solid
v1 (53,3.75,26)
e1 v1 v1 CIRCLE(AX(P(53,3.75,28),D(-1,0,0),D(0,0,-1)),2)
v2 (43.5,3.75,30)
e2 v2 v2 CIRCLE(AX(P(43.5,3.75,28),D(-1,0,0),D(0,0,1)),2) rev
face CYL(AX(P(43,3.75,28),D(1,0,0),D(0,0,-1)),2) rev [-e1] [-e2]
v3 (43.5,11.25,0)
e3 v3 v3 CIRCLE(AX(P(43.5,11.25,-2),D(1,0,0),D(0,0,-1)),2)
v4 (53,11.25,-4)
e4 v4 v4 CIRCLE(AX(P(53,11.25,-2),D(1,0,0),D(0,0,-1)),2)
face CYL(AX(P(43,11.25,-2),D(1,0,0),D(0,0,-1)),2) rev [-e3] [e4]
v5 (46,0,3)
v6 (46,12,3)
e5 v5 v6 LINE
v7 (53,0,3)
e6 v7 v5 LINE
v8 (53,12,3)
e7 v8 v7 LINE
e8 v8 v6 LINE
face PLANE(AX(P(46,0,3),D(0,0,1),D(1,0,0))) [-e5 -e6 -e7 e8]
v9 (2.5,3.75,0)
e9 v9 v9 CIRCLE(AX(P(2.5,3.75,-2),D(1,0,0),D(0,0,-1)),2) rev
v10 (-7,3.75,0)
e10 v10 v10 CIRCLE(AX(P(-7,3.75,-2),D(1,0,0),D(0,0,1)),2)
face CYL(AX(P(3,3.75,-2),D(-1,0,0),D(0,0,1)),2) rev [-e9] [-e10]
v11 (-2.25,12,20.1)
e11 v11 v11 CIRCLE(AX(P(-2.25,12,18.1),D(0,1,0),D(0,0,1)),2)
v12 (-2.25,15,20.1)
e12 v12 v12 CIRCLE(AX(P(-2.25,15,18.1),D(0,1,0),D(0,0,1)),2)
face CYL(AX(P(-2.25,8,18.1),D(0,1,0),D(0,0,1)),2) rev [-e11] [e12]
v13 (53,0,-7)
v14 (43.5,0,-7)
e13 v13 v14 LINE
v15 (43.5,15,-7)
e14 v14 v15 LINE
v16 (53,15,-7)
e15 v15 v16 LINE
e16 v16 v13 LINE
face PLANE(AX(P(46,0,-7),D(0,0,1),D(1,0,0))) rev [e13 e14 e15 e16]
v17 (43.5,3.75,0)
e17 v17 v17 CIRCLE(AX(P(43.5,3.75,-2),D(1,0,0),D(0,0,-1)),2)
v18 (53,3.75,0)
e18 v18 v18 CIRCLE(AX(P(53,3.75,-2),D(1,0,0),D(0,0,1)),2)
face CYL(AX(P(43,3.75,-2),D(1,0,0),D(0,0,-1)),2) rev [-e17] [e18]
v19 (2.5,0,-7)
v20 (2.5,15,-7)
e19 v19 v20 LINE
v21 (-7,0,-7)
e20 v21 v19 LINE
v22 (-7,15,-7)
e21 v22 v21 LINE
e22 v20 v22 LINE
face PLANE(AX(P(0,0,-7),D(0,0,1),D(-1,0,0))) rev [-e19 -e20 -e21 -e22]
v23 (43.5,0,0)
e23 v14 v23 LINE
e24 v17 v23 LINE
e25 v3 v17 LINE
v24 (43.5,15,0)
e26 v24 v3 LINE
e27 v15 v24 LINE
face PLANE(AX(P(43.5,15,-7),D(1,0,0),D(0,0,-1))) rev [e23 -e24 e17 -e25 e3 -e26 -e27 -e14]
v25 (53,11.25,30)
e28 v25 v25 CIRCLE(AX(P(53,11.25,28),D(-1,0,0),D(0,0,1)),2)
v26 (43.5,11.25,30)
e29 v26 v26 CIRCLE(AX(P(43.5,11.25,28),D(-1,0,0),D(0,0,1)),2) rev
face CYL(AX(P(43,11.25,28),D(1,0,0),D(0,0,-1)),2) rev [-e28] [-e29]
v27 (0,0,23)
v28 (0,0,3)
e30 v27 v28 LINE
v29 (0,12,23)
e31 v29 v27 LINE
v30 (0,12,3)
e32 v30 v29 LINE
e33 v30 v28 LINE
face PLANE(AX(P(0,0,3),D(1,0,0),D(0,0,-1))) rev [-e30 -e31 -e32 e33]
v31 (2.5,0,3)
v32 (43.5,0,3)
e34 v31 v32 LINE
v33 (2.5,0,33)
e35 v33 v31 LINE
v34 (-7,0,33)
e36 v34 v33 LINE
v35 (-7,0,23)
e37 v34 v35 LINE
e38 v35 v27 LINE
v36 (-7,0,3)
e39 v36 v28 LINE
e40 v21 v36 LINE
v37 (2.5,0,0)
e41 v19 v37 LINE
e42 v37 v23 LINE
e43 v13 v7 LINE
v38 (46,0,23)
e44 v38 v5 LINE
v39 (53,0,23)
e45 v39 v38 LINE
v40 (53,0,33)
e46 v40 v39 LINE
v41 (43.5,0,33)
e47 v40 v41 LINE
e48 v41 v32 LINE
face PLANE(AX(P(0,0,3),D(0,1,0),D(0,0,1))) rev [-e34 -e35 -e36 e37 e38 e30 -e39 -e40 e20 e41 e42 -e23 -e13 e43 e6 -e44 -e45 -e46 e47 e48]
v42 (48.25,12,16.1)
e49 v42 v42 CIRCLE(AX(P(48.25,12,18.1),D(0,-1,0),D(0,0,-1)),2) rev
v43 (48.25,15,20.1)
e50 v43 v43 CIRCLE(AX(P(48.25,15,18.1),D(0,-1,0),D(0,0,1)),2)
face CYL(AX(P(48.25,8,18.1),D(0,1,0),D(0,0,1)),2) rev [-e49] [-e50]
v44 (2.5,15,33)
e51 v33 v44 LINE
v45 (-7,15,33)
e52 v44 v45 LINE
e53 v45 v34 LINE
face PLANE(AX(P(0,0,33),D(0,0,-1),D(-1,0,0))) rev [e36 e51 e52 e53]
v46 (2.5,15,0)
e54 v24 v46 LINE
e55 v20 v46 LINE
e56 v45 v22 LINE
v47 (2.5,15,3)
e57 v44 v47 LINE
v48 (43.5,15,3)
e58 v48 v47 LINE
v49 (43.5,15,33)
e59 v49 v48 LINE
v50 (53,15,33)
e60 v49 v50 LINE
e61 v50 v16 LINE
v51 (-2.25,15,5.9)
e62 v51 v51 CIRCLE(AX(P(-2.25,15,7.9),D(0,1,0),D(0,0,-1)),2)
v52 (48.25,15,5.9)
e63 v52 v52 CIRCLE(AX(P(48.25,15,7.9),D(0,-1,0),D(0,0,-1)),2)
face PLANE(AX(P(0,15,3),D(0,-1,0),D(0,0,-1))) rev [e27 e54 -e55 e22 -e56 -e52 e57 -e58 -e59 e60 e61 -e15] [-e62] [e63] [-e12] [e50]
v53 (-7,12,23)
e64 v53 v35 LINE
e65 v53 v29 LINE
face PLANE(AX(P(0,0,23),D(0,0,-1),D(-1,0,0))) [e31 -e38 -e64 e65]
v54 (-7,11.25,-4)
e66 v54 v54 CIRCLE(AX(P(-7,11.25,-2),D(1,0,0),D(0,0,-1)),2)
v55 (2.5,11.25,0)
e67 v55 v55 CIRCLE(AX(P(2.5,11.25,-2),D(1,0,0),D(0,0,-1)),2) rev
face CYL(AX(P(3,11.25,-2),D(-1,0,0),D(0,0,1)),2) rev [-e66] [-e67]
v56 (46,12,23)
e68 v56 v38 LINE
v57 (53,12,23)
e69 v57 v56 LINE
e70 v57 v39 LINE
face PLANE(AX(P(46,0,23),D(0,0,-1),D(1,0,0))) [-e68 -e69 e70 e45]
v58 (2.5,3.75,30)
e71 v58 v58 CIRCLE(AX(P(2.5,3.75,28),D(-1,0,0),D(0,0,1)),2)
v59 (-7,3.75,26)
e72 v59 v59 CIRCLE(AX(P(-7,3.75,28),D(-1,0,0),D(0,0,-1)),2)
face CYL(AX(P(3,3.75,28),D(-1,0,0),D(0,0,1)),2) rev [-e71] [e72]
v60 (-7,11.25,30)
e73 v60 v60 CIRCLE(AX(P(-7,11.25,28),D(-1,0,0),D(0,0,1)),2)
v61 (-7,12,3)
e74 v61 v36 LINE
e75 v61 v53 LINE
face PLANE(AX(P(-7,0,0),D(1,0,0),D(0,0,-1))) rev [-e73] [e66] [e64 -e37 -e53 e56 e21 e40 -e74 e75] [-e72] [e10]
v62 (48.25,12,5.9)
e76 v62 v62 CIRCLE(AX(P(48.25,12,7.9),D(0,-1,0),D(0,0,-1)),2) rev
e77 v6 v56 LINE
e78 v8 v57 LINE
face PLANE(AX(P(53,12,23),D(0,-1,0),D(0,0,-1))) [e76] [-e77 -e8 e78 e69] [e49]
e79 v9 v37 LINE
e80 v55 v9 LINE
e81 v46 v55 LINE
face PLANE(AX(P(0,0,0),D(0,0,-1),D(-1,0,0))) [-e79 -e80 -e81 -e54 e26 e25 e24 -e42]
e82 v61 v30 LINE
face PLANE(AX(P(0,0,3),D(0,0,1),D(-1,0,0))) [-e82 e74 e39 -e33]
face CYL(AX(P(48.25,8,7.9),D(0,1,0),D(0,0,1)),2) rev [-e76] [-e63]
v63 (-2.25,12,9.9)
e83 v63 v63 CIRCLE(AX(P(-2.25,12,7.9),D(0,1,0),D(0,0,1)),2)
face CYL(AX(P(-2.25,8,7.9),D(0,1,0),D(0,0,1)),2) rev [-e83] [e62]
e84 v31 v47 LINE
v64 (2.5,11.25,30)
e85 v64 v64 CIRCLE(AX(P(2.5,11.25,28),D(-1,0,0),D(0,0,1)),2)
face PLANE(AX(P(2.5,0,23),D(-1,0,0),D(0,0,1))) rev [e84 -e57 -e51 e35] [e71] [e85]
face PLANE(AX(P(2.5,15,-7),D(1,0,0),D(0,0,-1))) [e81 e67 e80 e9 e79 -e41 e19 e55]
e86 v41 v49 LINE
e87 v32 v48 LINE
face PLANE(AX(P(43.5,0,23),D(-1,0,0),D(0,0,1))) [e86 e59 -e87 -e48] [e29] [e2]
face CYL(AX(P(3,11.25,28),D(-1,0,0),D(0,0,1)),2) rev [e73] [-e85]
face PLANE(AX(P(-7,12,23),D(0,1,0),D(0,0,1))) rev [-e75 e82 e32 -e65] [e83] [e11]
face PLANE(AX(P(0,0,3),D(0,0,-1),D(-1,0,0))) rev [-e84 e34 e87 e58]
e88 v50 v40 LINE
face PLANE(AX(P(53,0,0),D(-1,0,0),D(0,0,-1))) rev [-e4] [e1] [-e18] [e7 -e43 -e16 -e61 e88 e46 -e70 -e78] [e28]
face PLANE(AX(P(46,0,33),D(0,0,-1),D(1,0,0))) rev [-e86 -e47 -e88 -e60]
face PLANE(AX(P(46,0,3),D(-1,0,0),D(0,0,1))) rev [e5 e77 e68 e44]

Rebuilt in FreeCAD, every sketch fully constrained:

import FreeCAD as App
import Part
import Sketcher
from FreeCAD import Vector

doc = App.newDocument("Part")
params = doc.addObject("Spreadsheet::Sheet", "Params")
for row, (alias, value) in enumerate([
    ("sketch1_width", "46 mm"),
    ("sketch1_height", "15 mm"),
    ("pad1_length", "3 mm"),
    ("sketch2_height", "15 mm"),
    ("sketch2_width", "2.5 mm"),
    ("pad2_length", "20 mm"),
    ("sketch3_width", "3 mm"),
    ("sketch3_height", "20 mm"),
    ("pad3_length", "7 mm"),
    ("sketch4_diameter", "4 mm"),
    ("pocket1_length", "7 mm"),
    ("sketch5_height", "15 mm"),
    ("sketch5_width", "9.5 mm"),
    ("pad4_length", "10 mm"),
    ("sketch6_diameter", "4 mm"),
    ("pocket2_length", "10 mm"),
    ("sketch7_height", "15 mm"),
    ("sketch7_width", "9.5 mm"),
    ("pad5_length", "10 mm"),
    ("sketch8_diameter", "4 mm"),
    ("pocket3_length", "10 mm"),
], start=1):
    params.set(f"A{row}", alias)
    params.set(f"B{row}", "=" + value)
    params.setAlias(f"B{row}", alias)

body = doc.addObject("PartDesign::Body", "Body")

# Sketch on XY plane
sketch1 = body.newObject("Sketcher::SketchObject", "Sketch")
sketch1.AttachmentSupport = (doc.getObject("XY_Plane"), [""])
sketch1.MapMode = "FlatFace"
sketch1.addGeometry([
    Part.LineSegment(Vector(0, 15, 0), Vector(0, 0, 0)),
    Part.LineSegment(Vector(0, 0, 0), Vector(46, 0, 0)),
    Part.LineSegment(Vector(46, 0, 0), Vector(46, 15, 0)),
    Part.LineSegment(Vector(46, 15, 0), Vector(0, 15, 0)),
], False)
sketch1.addConstraint([
    Sketcher.Constraint("Coincident", 0, 2, 1, 1),
    Sketcher.Constraint("Coincident", 1, 2, 2, 1),
    Sketcher.Constraint("Coincident", 2, 2, 3, 1),
    Sketcher.Constraint("Coincident", 3, 2, 0, 1),
    Sketcher.Constraint("Vertical", 0),
    Sketcher.Constraint("Horizontal", 1),
    Sketcher.Constraint("Vertical", 2),
    Sketcher.Constraint("Horizontal", 3),
    Sketcher.Constraint("Coincident", 0, 2, -1, 1),
    Sketcher.Constraint("DistanceX", 1, 1, 1, 2, 46.0),
    Sketcher.Constraint("DistanceY", 0, 2, 0, 1, 15.0),
])
sketch1.setExpression("Constraints[9]", "Params.sketch1_width")
sketch1.setExpression("Constraints[10]", "Params.sketch1_height")
pad1 = body.newObject("PartDesign::Pad", "Pad")
pad1.Profile = sketch1
pad1.setExpression("Length", "Params.pad1_length")

# Sketch on XY plane
sketch2 = body.newObject("Sketcher::SketchObject", "Sketch001")
sketch2.AttachmentSupport = (doc.getObject("XY_Plane"), [""])
sketch2.MapMode = "FlatFace"
sketch2.AttachmentOffset = App.Placement(Vector(0, 0, 3), App.Rotation())
sketch2.addGeometry([
    Part.LineSegment(Vector(0, 15, 0), Vector(0, 0, 0)),
    Part.LineSegment(Vector(0, 0, 0), Vector(2.5, 0, 0)),
    Part.LineSegment(Vector(2.5, 0, 0), Vector(2.5, 15, 0)),
    Part.LineSegment(Vector(2.5, 15, 0), Vector(0, 15, 0)),
], False)
sketch2.addConstraint([
    Sketcher.Constraint("Coincident", 0, 2, 1, 1),
    Sketcher.Constraint("Coincident", 1, 2, 2, 1),
    Sketcher.Constraint("Coincident", 2, 2, 3, 1),
    Sketcher.Constraint("Coincident", 3, 2, 0, 1),
    Sketcher.Constraint("Vertical", 0),
    Sketcher.Constraint("Horizontal", 1),
    Sketcher.Constraint("Vertical", 2),
    Sketcher.Constraint("Horizontal", 3),
    Sketcher.Constraint("Coincident", 0, 2, -1, 1),
    Sketcher.Constraint("DistanceY", 0, 2, 0, 1, 15.0),
    Sketcher.Constraint("DistanceX", 1, 1, 1, 2, 2.5),
])
sketch2.setExpression("Constraints[9]", "Params.sketch2_height")
sketch2.setExpression("Constraints[10]", "Params.sketch2_width")
pad2 = body.newObject("PartDesign::Pad", "Pad001")
pad2.Profile = sketch2
pad2.setExpression("Length", "Params.pad2_length")

# Sketch on YZ plane
sketch3 = body.newObject("Sketcher::SketchObject", "Sketch002")
sketch3.AttachmentSupport = (doc.getObject("YZ_Plane"), [""])
sketch3.MapMode = "FlatFace"
sketch3.addGeometry([
    Part.LineSegment(Vector(15, 3, 0), Vector(12, 3, 0)),
    Part.LineSegment(Vector(12, 3, 0), Vector(12, 23, 0)),
    Part.LineSegment(Vector(12, 23, 0), Vector(15, 23, 0)),
    Part.LineSegment(Vector(15, 23, 0), Vector(15, 3, 0)),
], False)
sketch3.addConstraint([
    Sketcher.Constraint("Coincident", 0, 2, 1, 1),
    Sketcher.Constraint("Coincident", 1, 2, 2, 1),
    Sketcher.Constraint("Coincident", 2, 2, 3, 1),
    Sketcher.Constraint("Coincident", 3, 2, 0, 1),
    Sketcher.Constraint("Horizontal", 0),
    Sketcher.Constraint("Vertical", 1),
    Sketcher.Constraint("Horizontal", 2),
    Sketcher.Constraint("Vertical", 3),
    Sketcher.Constraint("DistanceX", 0, 2, 0, 1, 3.0),
    Sketcher.Constraint("DistanceY", 1, 1, 1, 2, 20.0),
    Sketcher.Constraint("DistanceX", -1, 1, 0, 2, 12.0),
    Sketcher.Constraint("DistanceY", -1, 1, 0, 2, 3.0),
])
sketch3.setExpression("Constraints[8]", "Params.sketch3_width")
sketch3.setExpression("Constraints[9]", "Params.sketch3_height")
pad3 = body.newObject("PartDesign::Pad", "Pad002")
pad3.Profile = sketch3
pad3.setExpression("Length", "Params.pad3_length")
pad3.Reversed = True

# Sketch on XZ plane
sketch4 = body.newObject("Sketcher::SketchObject", "Sketch003")
sketch4.AttachmentSupport = (doc.getObject("XZ_Plane"), [""])
sketch4.MapMode = "FlatFace"
sketch4.AttachmentOffset = App.Placement(Vector(0, 0, -15), App.Rotation())
sketch4.addGeometry([
    Part.Circle(Vector(-2.25, 18.1, 0), Vector(0, 0, 1), 2),
    Part.Circle(Vector(-2.25, 7.9, 0), Vector(0, 0, 1), 2),
], False)
sketch4.addConstraint([
    Sketcher.Constraint("Equal", 0, 1),
    Sketcher.Constraint("Vertical", 0, 3, 1, 3),
    Sketcher.Constraint("Diameter", 0, 4.0),
    Sketcher.Constraint("DistanceY", -1, 1, 0, 3, 18.1),
    Sketcher.Constraint("DistanceY", -1, 1, 1, 3, 7.9),
    Sketcher.Constraint("DistanceX", 0, 3, -1, 1, 2.25),
])
sketch4.setExpression("Constraints[2]", "Params.sketch4_diameter")
pocket1 = body.newObject("PartDesign::Pocket", "Pocket")
pocket1.Profile = sketch4
pocket1.setExpression("Length", "Params.pocket1_length")
pocket1.Reversed = True
doc.recompute()

datumplane = body.newObject("PartDesign::Plane", "DatumPlane")
datumplane.AttachmentSupport = (doc.getObject("YZ_Plane"), [""])
datumplane.MapMode = "FlatFace"
datumplane.AttachmentOffset = App.Placement(Vector(0, 0, 23), App.Rotation())
mirrored = body.newObject("PartDesign::Mirrored", "Mirrored")
mirrored.Originals = [pad2, pad3, pocket1]
mirrored.MirrorPlane = (datumplane, [""])
body.Tip = mirrored

# Sketch on XY plane
sketch5 = body.newObject("Sketcher::SketchObject", "Sketch004")
sketch5.AttachmentSupport = (doc.getObject("XY_Plane"), [""])
sketch5.MapMode = "FlatFace"
sketch5.AttachmentOffset = App.Placement(Vector(0, 0, 23), App.Rotation())
sketch5.addGeometry([
    Part.LineSegment(Vector(-7, 15, 0), Vector(-7, 0, 0)),
    Part.LineSegment(Vector(-7, 0, 0), Vector(2.5, 0, 0)),
    Part.LineSegment(Vector(2.5, 0, 0), Vector(2.5, 15, 0)),
    Part.LineSegment(Vector(2.5, 15, 0), Vector(-7, 15, 0)),
], False)
sketch5.addConstraint([
    Sketcher.Constraint("Coincident", 0, 2, 1, 1),
    Sketcher.Constraint("Coincident", 1, 2, 2, 1),
    Sketcher.Constraint("Coincident", 2, 2, 3, 1),
    Sketcher.Constraint("Coincident", 3, 2, 0, 1),
    Sketcher.Constraint("Vertical", 0),
    Sketcher.Constraint("Horizontal", 1),
    Sketcher.Constraint("Vertical", 2),
    Sketcher.Constraint("Horizontal", 3),
    Sketcher.Constraint("PointOnObject", 0, 2, -1),
    Sketcher.Constraint("DistanceY", 0, 2, 0, 1, 15.0),
    Sketcher.Constraint("DistanceX", 1, 1, 1, 2, 9.5),
    Sketcher.Constraint("DistanceX", 0, 2, -1, 1, 7.0),
])
sketch5.setExpression("Constraints[9]", "Params.sketch5_height")
sketch5.setExpression("Constraints[10]", "Params.sketch5_width")
pad4 = body.newObject("PartDesign::Pad", "Pad003")
pad4.Profile = sketch5
pad4.setExpression("Length", "Params.pad4_length")

# Sketch on YZ plane
sketch6 = body.newObject("Sketcher::SketchObject", "Sketch005")
sketch6.AttachmentSupport = (doc.getObject("YZ_Plane"), [""])
sketch6.MapMode = "FlatFace"
sketch6.AttachmentOffset = App.Placement(Vector(0, 0, -7), App.Rotation())
sketch6.addGeometry([
    Part.Circle(Vector(11.25, 28, 0), Vector(0, 0, 1), 2),
    Part.Circle(Vector(3.75, 28, 0), Vector(0, 0, 1), 2),
], False)
sketch6.addConstraint([
    Sketcher.Constraint("Equal", 0, 1),
    Sketcher.Constraint("Horizontal", 0, 3, 1, 3),
    Sketcher.Constraint("Diameter", 0, 4.0),
    Sketcher.Constraint("DistanceY", -1, 1, 0, 3, 28.0),
    Sketcher.Constraint("DistanceX", 1, 3, 0, 3, 7.5),
    Sketcher.Constraint("DistanceX", -1, 1, 0, 3, 11.25),
])
sketch6.setExpression("Constraints[2]", "Params.sketch6_diameter")
pocket2 = body.newObject("PartDesign::Pocket", "Pocket001")
pocket2.Profile = sketch6
pocket2.setExpression("Length", "Params.pocket2_length")
pocket2.Reversed = True
doc.recompute()

datumplane2 = body.newObject("PartDesign::Plane", "DatumPlane001")
datumplane2.AttachmentSupport = (doc.getObject("YZ_Plane"), [""])
datumplane2.MapMode = "FlatFace"
datumplane2.AttachmentOffset = App.Placement(Vector(0, 0, 23), App.Rotation())
mirrored2 = body.newObject("PartDesign::Mirrored", "Mirrored001")
mirrored2.Originals = [pad4, pocket2]
mirrored2.MirrorPlane = (datumplane2, [""])
body.Tip = mirrored2
doc.recompute()

datumplane3 = body.newObject("PartDesign::Plane", "DatumPlane002")
datumplane3.AttachmentSupport = (doc.getObject("XY_Plane"), [""])
datumplane3.MapMode = "FlatFace"
datumplane3.AttachmentOffset = App.Placement(Vector(0, 0, 13), App.Rotation())
mirrored3 = body.newObject("PartDesign::Mirrored", "Mirrored002")
mirrored3.Originals = [pad4, pocket2]
mirrored3.MirrorPlane = (datumplane3, [""])
body.Tip = mirrored3

# Sketch on XY plane
sketch7 = body.newObject("Sketcher::SketchObject", "Sketch006")
sketch7.AttachmentSupport = (doc.getObject("XY_Plane"), [""])
sketch7.MapMode = "FlatFace"
sketch7.AttachmentOffset = App.Placement(Vector(0, 0, 3), App.Rotation())
sketch7.addGeometry([
    Part.LineSegment(Vector(53, 15, 0), Vector(53, 0, 0)),
    Part.LineSegment(Vector(53, 0, 0), Vector(43.5, 0, 0)),
    Part.LineSegment(Vector(43.5, 0, 0), Vector(43.5, 15, 0)),
    Part.LineSegment(Vector(43.5, 15, 0), Vector(53, 15, 0)),
], False)
sketch7.addConstraint([
    Sketcher.Constraint("Coincident", 0, 2, 1, 1),
    Sketcher.Constraint("Coincident", 1, 2, 2, 1),
    Sketcher.Constraint("Coincident", 2, 2, 3, 1),
    Sketcher.Constraint("Coincident", 3, 2, 0, 1),
    Sketcher.Constraint("Vertical", 0),
    Sketcher.Constraint("Horizontal", 1),
    Sketcher.Constraint("Vertical", 2),
    Sketcher.Constraint("Horizontal", 3),
    Sketcher.Constraint("PointOnObject", 0, 2, -1),
    Sketcher.Constraint("DistanceY", 0, 2, 0, 1, 15.0),
    Sketcher.Constraint("DistanceX", 1, 2, 1, 1, 9.5),
    Sketcher.Constraint("DistanceX", -1, 1, 0, 2, 53.0),
])
sketch7.setExpression("Constraints[9]", "Params.sketch7_height")
sketch7.setExpression("Constraints[10]", "Params.sketch7_width")
pad5 = body.newObject("PartDesign::Pad", "Pad004")
pad5.Profile = sketch7
pad5.setExpression("Length", "Params.pad5_length")
pad5.Reversed = True

# Sketch on YZ plane
sketch8 = body.newObject("Sketcher::SketchObject", "Sketch007")
sketch8.AttachmentSupport = (doc.getObject("YZ_Plane"), [""])
sketch8.MapMode = "FlatFace"
sketch8.AttachmentOffset = App.Placement(Vector(0, 0, 53), App.Rotation())
sketch8.addGeometry([
    Part.Circle(Vector(11.25, -2, 0), Vector(0, 0, 1), 2),
    Part.Circle(Vector(3.75, -2, 0), Vector(0, 0, 1), 2),
], False)
sketch8.addConstraint([
    Sketcher.Constraint("Equal", 0, 1),
    Sketcher.Constraint("Horizontal", 0, 3, 1, 3),
    Sketcher.Constraint("Diameter", 0, 4.0),
    Sketcher.Constraint("DistanceY", 0, 3, -1, 1, 2.0),
    Sketcher.Constraint("DistanceX", 1, 3, 0, 3, 7.5),
    Sketcher.Constraint("DistanceX", -1, 1, 0, 3, 11.25),
])
sketch8.setExpression("Constraints[2]", "Params.sketch8_diameter")
pocket3 = body.newObject("PartDesign::Pocket", "Pocket002")
pocket3.Profile = sketch8
pocket3.setExpression("Length", "Params.pocket3_length")

doc.recompute()
